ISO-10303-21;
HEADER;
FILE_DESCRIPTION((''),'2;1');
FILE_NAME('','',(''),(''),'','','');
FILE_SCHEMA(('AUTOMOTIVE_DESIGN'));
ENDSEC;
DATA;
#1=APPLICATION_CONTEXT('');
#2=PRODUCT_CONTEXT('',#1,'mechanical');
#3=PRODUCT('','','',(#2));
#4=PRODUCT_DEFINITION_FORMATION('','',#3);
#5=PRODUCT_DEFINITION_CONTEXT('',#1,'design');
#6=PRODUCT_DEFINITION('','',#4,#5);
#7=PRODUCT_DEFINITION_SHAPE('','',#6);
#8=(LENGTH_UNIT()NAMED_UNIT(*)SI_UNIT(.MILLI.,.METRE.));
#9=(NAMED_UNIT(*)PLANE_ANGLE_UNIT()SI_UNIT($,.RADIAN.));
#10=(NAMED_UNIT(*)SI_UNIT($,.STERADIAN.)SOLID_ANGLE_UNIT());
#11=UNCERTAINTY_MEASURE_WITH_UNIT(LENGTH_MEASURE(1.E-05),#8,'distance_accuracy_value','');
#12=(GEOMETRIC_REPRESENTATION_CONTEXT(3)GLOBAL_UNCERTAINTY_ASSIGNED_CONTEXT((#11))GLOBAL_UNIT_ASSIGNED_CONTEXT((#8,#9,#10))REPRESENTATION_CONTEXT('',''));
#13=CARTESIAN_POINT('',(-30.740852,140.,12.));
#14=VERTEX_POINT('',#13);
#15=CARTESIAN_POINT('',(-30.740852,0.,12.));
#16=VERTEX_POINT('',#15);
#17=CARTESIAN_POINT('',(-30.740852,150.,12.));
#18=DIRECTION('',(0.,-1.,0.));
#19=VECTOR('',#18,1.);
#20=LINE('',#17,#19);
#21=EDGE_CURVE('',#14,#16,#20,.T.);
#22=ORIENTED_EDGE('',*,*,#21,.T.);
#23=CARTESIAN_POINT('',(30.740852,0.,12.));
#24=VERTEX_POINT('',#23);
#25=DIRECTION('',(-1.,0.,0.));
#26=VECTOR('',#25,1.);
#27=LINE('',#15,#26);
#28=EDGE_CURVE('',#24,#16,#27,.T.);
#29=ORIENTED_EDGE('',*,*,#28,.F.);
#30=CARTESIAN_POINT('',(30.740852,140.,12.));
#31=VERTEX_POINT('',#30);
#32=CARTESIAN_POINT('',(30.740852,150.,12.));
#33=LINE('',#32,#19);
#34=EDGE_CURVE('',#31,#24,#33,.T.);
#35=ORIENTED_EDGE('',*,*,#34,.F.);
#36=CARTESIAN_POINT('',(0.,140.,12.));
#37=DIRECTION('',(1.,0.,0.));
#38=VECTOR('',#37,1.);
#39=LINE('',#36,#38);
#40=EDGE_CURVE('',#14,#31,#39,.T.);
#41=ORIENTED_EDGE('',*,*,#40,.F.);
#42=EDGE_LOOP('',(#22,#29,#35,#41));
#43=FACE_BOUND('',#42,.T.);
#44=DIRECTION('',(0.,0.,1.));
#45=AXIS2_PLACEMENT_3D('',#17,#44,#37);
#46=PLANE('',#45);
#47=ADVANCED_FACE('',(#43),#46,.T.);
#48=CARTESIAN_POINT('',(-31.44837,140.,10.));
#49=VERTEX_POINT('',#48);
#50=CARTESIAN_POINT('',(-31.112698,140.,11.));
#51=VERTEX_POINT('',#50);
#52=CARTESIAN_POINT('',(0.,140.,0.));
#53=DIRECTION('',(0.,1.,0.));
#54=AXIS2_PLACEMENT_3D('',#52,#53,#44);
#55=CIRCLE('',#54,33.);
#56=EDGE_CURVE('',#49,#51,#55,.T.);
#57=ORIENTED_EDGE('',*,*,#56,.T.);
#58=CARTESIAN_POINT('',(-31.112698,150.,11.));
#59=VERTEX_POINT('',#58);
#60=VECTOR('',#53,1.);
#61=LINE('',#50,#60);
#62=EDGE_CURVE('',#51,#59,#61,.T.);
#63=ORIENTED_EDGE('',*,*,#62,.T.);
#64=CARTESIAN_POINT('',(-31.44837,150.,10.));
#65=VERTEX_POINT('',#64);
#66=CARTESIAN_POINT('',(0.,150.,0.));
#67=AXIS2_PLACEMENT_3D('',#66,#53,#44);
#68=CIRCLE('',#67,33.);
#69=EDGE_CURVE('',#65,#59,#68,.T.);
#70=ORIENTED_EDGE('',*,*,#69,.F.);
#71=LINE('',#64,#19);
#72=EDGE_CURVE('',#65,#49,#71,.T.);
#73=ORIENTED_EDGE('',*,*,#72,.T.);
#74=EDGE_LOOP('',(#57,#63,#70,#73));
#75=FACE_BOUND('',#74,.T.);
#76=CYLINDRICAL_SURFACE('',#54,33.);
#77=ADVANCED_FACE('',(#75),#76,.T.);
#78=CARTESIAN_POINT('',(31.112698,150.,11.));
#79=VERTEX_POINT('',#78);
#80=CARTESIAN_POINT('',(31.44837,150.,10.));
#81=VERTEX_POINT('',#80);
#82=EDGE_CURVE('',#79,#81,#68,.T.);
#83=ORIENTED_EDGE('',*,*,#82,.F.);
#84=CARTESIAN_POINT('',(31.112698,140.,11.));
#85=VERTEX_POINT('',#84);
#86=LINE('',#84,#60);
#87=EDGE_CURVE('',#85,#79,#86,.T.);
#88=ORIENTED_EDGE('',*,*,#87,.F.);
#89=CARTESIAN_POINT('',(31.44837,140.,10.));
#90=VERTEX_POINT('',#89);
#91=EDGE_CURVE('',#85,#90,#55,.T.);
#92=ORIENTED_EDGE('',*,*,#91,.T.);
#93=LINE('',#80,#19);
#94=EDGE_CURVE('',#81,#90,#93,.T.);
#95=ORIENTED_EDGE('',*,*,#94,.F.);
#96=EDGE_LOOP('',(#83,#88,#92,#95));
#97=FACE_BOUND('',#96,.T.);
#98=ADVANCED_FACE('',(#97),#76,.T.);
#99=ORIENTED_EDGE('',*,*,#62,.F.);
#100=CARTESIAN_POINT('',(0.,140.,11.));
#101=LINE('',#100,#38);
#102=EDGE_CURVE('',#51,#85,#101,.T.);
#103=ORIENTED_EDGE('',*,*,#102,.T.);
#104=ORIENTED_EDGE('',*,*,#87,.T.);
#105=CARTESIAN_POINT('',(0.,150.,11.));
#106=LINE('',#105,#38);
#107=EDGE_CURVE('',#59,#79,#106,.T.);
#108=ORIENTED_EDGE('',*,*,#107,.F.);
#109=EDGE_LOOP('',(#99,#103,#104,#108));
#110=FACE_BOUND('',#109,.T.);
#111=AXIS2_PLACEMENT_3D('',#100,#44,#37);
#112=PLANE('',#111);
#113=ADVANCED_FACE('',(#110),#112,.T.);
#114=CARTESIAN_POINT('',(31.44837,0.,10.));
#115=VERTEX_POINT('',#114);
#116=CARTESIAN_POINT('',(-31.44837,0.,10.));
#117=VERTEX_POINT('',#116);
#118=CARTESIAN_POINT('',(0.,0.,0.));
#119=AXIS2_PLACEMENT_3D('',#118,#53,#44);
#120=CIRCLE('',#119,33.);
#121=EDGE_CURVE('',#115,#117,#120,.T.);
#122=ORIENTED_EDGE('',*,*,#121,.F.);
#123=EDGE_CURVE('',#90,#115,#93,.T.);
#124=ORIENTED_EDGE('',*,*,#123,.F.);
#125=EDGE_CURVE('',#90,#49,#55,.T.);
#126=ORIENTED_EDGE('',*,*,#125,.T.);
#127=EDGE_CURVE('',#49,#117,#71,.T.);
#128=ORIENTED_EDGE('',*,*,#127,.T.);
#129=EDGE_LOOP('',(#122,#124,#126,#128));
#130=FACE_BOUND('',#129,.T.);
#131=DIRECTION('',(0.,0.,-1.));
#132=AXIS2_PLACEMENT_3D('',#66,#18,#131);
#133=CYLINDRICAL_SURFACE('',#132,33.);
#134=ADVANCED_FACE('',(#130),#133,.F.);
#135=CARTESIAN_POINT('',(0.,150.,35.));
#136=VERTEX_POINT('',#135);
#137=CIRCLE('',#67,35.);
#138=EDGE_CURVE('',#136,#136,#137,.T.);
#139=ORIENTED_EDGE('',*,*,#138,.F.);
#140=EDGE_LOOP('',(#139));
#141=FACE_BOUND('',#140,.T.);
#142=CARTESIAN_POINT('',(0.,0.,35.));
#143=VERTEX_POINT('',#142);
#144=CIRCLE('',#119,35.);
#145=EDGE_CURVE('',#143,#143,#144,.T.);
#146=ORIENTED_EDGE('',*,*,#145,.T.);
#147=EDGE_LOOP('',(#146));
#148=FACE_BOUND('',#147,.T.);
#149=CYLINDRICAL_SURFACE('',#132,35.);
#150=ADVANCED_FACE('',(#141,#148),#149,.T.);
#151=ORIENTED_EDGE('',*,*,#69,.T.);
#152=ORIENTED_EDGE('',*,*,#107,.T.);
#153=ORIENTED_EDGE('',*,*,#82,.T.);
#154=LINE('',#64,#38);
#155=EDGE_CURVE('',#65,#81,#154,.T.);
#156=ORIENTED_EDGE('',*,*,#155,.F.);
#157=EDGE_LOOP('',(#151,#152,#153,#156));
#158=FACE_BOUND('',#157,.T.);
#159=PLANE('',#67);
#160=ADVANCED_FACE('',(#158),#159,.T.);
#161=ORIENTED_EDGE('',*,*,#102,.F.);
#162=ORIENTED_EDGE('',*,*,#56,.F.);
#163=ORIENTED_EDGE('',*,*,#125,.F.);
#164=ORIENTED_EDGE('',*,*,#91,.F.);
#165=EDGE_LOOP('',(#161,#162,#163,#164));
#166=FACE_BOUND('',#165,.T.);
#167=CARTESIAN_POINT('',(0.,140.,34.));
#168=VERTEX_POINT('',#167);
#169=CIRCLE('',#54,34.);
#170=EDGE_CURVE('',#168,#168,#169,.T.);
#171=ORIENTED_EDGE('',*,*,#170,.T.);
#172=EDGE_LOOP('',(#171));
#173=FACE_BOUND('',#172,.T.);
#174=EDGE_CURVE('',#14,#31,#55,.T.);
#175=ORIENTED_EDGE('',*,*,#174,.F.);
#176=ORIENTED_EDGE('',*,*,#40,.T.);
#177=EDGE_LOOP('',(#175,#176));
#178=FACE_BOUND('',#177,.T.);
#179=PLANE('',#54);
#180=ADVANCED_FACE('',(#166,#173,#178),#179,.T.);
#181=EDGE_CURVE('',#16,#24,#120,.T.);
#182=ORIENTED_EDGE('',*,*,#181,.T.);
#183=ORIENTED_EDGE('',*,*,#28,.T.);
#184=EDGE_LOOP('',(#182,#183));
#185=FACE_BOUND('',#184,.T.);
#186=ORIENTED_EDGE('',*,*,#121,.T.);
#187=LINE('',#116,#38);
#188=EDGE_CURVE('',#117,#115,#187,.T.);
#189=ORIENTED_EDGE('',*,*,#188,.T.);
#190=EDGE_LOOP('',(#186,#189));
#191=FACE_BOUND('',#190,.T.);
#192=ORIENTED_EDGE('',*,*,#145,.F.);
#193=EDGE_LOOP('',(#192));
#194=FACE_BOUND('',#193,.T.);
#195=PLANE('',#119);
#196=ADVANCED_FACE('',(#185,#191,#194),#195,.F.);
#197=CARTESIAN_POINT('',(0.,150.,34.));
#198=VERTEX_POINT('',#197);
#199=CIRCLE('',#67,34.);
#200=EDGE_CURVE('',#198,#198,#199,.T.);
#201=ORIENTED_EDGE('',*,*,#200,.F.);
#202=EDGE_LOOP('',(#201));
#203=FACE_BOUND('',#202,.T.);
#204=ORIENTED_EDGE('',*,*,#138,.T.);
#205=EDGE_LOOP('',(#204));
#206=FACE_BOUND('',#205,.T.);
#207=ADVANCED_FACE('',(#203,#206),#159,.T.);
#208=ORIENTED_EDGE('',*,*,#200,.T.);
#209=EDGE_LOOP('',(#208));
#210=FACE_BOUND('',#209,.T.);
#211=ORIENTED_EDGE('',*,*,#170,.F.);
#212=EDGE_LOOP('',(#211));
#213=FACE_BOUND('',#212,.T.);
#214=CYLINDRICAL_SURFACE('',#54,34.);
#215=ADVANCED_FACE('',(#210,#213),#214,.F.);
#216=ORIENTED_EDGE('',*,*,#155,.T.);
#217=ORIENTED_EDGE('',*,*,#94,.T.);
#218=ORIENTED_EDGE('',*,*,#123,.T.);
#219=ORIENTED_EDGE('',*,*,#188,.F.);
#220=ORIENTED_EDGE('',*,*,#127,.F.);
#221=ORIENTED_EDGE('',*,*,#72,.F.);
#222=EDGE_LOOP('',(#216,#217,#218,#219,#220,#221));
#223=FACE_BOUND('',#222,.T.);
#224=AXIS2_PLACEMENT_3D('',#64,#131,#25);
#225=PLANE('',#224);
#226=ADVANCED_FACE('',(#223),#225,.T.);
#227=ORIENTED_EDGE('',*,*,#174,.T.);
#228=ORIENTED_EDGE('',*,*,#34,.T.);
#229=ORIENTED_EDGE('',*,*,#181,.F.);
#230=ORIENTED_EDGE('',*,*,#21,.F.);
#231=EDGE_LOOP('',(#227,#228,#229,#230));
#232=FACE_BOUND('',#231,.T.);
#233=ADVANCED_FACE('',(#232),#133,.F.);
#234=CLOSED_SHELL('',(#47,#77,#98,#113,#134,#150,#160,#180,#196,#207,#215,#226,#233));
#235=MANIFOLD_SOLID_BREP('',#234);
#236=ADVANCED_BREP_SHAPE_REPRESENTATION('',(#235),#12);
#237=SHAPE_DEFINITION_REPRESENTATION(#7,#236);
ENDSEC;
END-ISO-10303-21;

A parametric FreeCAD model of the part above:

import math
import FreeCAD as App
import Part
import Sketcher
from FreeCAD import Vector

doc = App.newDocument("Part")
params = doc.addObject("Spreadsheet::Sheet", "Params")
for row, (alias, value) in enumerate([
    ("sketch1_diameter", "70 mm"),
    ("sketch1_radius", "33 mm"),
    ("pad1_length", "150 mm"),
    ("sketch2_diameter", "68 mm"),
    ("sketch2_radius", "33 mm"),
    ("pocket1_length", "10 mm"),
], start=1):
    params.set(f"A{row}", alias)
    params.set(f"B{row}", "=" + value)
    params.setAlias(f"B{row}", alias)

body = doc.addObject("PartDesign::Body", "Body")

# Sketch on XZ plane
sketch1 = body.newObject("Sketcher::SketchObject", "Sketch")
sketch1.AttachmentSupport = (doc.getObject("XZ_Plane"), [""])
sketch1.MapMode = "FlatFace"
sketch1.addGeometry(Part.Circle(Vector(0, 0, 0), Vector(0, 0, 1), 35), False)
sketch1.addGeometry(Part.LineSegment(Vector(31.44837, 10, 0), Vector(-31.44837, 10, 0)), False)
sketch1.addGeometry(Part.ArcOfCircle(Part.Circle(Vector(0, 0, 0), Vector(0, 0, 1), 33), math.radians(162.360299), math.radians(377.639701)), False)
sketch1.addGeometry(Part.ArcOfCircle(Part.Circle(Vector(0, 0, 0), Vector(0, 0, 1), 33), math.radians(21.323686), math.radians(158.676314)), False)
sketch1.addGeometry(Part.LineSegment(Vector(-30.740852, 12, 0), Vector(30.740852, 12, 0)), False)
sketch1.addConstraint(Sketcher.Constraint("Coincident", 1, 1, 2, 2))
sketch1.addConstraint(Sketcher.Constraint("Coincident", 2, 1, 1, 2))
sketch1.addConstraint(Sketcher.Constraint("Coincident", 3, 1, 4, 2))
sketch1.addConstraint(Sketcher.Constraint("Coincident", 4, 1, 3, 2))
sketch1.addConstraint(Sketcher.Constraint("Horizontal", 1))
sketch1.addConstraint(Sketcher.Constraint("Horizontal", 4))
sketch1.addConstraint(Sketcher.Constraint("Coincident", 0, 3, -1, 1))
sketch1.addConstraint(Sketcher.Constraint("Coincident", 2, 3, -1, 1))
sketch1.addConstraint(Sketcher.Constraint("Coincident", 3, 3, -1, 1))
sketch1.addConstraint(Sketcher.Constraint("Equal", 2, 3))
sketch1.addConstraint(Sketcher.Constraint("Diameter", 0, 70.0))
sketch1.addConstraint(Sketcher.Constraint("Radius", 2, 33.0))
sketch1.addConstraint(Sketcher.Constraint("DistanceY", -1, 1, 1, 1, 10.0))
sketch1.addConstraint(Sketcher.Constraint("DistanceY", -1, 1, 3, 1, 12.0))
sketch1.setExpression("Constraints[10]", "Params.sketch1_diameter")
sketch1.setExpression("Constraints[11]", "Params.sketch1_radius")
pad1 = body.newObject("PartDesign::Pad", "Pad")
pad1.Profile = sketch1
pad1.setExpression("Length", "Params.pad1_length")
pad1.Reversed = True

# Sketch on XZ plane
sketch2 = body.newObject("Sketcher::SketchObject", "Sketch001")
sketch2.AttachmentSupport = (doc.getObject("XZ_Plane"), [""])
sketch2.MapMode = "FlatFace"
sketch2.AttachmentOffset = App.Placement(Vector(0, 0, -140), App.Rotation())
sketch2.addGeometry(Part.Circle(Vector(0, 0, 0), Vector(0, 0, 1), 34), False)
sketch2.addGeometry(Part.ArcOfCircle(Part.Circle(Vector(0, 0, 0), Vector(0, 0, 1), 33), math.radians(160.528779), math.radians(379.471221)), False)
sketch2.addGeometry(Part.LineSegment(Vector(31.112698, 11, 0), Vector(-31.112698, 11, 0)), False)
sketch2.addGeometry(Part.ArcOfCircle(Part.Circle(Vector(0, 0, 0), Vector(0, 0, 1), 33), math.radians(21.323686), math.radians(158.676314)), False)
sketch2.addGeometry(Part.LineSegment(Vector(-30.740852, 12, 0), Vector(30.740852, 12, 0)), False)
sketch2.addConstraint(Sketcher.Constraint("Coincident", 1, 1, 2, 2))
sketch2.addConstraint(Sketcher.Constraint("Coincident", 2, 1, 1, 2))
sketch2.addConstraint(Sketcher.Constraint("Coincident", 3, 1, 4, 2))
sketch2.addConstraint(Sketcher.Constraint("Coincident", 4, 1, 3, 2))
sketch2.addConstraint(Sketcher.Constraint("Horizontal", 2))
sketch2.addConstraint(Sketcher.Constraint("Horizontal", 4))
sketch2.addConstraint(Sketcher.Constraint("Coincident", 0, 3, -1, 1))
sketch2.addConstraint(Sketcher.Constraint("Coincident", 1, 3, -1, 1))
sketch2.addConstraint(Sketcher.Constraint("Coincident", 3, 3, -1, 1))
sketch2.addConstraint(Sketcher.Constraint("Equal", 1, 3))
sketch2.addConstraint(Sketcher.Constraint("Diameter", 0, 68.0))
sketch2.addConstraint(Sketcher.Constraint("Radius", 1, 33.0))
sketch2.addConstraint(Sketcher.Constraint("DistanceY", -1, 1, 1, 1, 11.0))
sketch2.addConstraint(Sketcher.Constraint("DistanceY", -1, 1, 3, 1, 12.0))
sketch2.setExpression("Constraints[10]", "Params.sketch2_diameter")
sketch2.setExpression("Constraints[11]", "Params.sketch2_radius")
pocket1 = body.newObject("PartDesign::Pocket", "Pocket")
pocket1.Profile = sketch2
pocket1.setExpression("Length", "Params.pocket1_length")

doc.recompute()
